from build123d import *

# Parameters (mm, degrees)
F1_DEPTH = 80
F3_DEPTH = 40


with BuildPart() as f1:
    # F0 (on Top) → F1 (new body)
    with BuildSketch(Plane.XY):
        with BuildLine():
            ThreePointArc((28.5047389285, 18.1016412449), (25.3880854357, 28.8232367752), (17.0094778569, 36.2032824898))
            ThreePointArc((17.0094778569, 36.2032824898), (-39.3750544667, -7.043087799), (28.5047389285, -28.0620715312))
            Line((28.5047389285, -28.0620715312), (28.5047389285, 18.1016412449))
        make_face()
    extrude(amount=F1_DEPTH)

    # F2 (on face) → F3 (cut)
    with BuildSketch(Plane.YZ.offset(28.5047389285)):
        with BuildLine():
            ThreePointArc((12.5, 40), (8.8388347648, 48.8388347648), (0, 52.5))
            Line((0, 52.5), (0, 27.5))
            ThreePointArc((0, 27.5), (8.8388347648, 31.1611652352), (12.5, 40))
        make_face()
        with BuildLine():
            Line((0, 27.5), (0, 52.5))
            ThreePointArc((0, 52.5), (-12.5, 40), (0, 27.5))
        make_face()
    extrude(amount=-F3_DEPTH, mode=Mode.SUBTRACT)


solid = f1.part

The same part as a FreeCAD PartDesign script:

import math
import FreeCAD as App
import Part
import Sketcher

doc = App.newDocument("Part")
params = doc.addObject("Spreadsheet::Sheet", "Params")
for row, (alias, value) in enumerate([
    ("sketch1_radius", "20 mm"),
    ("sketch1_radius2", "40 mm"),
    ("pad1_length", "80 mm"),
    ("sketch2_radius", "12.5 mm"),
    ("pocket1_length", "40 mm"),
], start=1):
    params.set(f"A{row}", alias)
    params.set(f"B{row}", "=" + value)
    params.setAlias(f"B{row}", alias)

body = doc.addObject("PartDesign::Body", "Body")

# Sketch on XY plane
sketch1 = body.newObject("Sketcher::SketchObject", "Sketch")
sketch1.AttachmentSupport = (doc.getObject("XY_Plane"), [""])
sketch1.MapMode = "FlatFace"
sketch1.addGeometry(Part.ArcOfCircle(Part.Circle(App.Vector(9, 18, 0), App.Vector(0, 0, 1), 20), math.radians(0), math.radians(65)), False)
sketch1.addGeometry(Part.ArcOfCircle(Part.Circle(App.Vector(0, 0, 0), App.Vector(0, 0, 1), 40), math.radians(65), math.radians(315)), False)
sketch1.addGeometry(Part.LineSegment(App.Vector(29, -28, 0), App.Vector(29, 18, 0)), False)
sketch1.addConstraint(Sketcher.Constraint("Tangent", 0, 2, 1, 1))
sketch1.addConstraint(Sketcher.Constraint("Coincident", 1, 2, 2, 1))
sketch1.addConstraint(Sketcher.Constraint("Tangent", 2, 2, 0, 1))
sketch1.addConstraint(Sketcher.Constraint("Vertical", 2))
sketch1.addConstraint(Sketcher.Constraint("Coincident", 1, 3, -1, 1))
sketch1.addConstraint(Sketcher.Constraint("Radius", 0, 20.0))
sketch1.addConstraint(Sketcher.Constraint("Radius", 1, 40.0))
sketch1.addConstraint(Sketcher.Constraint("DistanceY", 2, 1, 2, 2, 46.163713))
sketch1.setExpression("Constraints[5]", "Params.sketch1_radius")
sketch1.setExpression("Constraints[6]", "Params.sketch1_radius2")
pad1 = body.newObject("PartDesign::Pad", "Pad")
pad1.Profile = sketch1
pad1.setExpression("Length", "Params.pad1_length")

# Sketch on YZ plane
sketch2 = body.newObject("Sketcher::SketchObject", "Sketch001")
sketch2.AttachmentSupport = (doc.getObject("YZ_Plane"), [""])
sketch2.MapMode = "FlatFace"
sketch2.AttachmentOffset = App.Placement(App.Vector(0, 0, 28.504739), App.Rotation())
sketch2.addGeometry(Part.ArcOfCircle(Part.Circle(App.Vector(0, 40, 0), App.Vector(0, 0, 1), 12), math.radians(0), math.radians(90)), False)
sketch2.addGeometry(Part.ArcOfCircle(Part.Circle(App.Vector(0, 40, 0), App.Vector(0, 0, 1), 12), math.radians(90), math.radians(270)), False)
sketch2.addGeometry(Part.ArcOfCircle(Part.Circle(App.Vector(0, 40, 0), App.Vector(0, 0, 1), 12), math.radians(-90), math.radians(0)), False)
sketch2.addConstraint(Sketcher.Constraint("Tangent", 0, 2, 1, 1))
sketch2.addConstraint(Sketcher.Constraint("Tangent", 1, 2, 2, 1))
sketch2.addConstraint(Sketcher.Constraint("Tangent", 2, 2, 0, 1))
sketch2.addConstraint(Sketcher.Constraint("PointOnObject", 0, 3, -2))
sketch2.addConstraint(Sketcher.Constraint("PointOnObject", 0, 2, -2))
sketch2.addConstraint(Sketcher.Constraint("PointOnObject", 1, 2, -2))
sketch2.addConstraint(Sketcher.Constraint("Horizontal", 1, 3, 2, 2))
sketch2.addConstraint(Sketcher.Constraint("Radius", 0, 12.5))
sketch2.addConstraint(Sketcher.Constraint("DistanceY", -1, 1, 0, 3, 40.0))
sketch2.setExpression("Constraints[7]", "Params.sketch2_radius")
pocket1 = body.newObject("PartDesign::Pocket", "Pocket")
pocket1.Profile = sketch2
pocket1.setExpression("Length", "Params.pocket1_length")

doc.recompute()
